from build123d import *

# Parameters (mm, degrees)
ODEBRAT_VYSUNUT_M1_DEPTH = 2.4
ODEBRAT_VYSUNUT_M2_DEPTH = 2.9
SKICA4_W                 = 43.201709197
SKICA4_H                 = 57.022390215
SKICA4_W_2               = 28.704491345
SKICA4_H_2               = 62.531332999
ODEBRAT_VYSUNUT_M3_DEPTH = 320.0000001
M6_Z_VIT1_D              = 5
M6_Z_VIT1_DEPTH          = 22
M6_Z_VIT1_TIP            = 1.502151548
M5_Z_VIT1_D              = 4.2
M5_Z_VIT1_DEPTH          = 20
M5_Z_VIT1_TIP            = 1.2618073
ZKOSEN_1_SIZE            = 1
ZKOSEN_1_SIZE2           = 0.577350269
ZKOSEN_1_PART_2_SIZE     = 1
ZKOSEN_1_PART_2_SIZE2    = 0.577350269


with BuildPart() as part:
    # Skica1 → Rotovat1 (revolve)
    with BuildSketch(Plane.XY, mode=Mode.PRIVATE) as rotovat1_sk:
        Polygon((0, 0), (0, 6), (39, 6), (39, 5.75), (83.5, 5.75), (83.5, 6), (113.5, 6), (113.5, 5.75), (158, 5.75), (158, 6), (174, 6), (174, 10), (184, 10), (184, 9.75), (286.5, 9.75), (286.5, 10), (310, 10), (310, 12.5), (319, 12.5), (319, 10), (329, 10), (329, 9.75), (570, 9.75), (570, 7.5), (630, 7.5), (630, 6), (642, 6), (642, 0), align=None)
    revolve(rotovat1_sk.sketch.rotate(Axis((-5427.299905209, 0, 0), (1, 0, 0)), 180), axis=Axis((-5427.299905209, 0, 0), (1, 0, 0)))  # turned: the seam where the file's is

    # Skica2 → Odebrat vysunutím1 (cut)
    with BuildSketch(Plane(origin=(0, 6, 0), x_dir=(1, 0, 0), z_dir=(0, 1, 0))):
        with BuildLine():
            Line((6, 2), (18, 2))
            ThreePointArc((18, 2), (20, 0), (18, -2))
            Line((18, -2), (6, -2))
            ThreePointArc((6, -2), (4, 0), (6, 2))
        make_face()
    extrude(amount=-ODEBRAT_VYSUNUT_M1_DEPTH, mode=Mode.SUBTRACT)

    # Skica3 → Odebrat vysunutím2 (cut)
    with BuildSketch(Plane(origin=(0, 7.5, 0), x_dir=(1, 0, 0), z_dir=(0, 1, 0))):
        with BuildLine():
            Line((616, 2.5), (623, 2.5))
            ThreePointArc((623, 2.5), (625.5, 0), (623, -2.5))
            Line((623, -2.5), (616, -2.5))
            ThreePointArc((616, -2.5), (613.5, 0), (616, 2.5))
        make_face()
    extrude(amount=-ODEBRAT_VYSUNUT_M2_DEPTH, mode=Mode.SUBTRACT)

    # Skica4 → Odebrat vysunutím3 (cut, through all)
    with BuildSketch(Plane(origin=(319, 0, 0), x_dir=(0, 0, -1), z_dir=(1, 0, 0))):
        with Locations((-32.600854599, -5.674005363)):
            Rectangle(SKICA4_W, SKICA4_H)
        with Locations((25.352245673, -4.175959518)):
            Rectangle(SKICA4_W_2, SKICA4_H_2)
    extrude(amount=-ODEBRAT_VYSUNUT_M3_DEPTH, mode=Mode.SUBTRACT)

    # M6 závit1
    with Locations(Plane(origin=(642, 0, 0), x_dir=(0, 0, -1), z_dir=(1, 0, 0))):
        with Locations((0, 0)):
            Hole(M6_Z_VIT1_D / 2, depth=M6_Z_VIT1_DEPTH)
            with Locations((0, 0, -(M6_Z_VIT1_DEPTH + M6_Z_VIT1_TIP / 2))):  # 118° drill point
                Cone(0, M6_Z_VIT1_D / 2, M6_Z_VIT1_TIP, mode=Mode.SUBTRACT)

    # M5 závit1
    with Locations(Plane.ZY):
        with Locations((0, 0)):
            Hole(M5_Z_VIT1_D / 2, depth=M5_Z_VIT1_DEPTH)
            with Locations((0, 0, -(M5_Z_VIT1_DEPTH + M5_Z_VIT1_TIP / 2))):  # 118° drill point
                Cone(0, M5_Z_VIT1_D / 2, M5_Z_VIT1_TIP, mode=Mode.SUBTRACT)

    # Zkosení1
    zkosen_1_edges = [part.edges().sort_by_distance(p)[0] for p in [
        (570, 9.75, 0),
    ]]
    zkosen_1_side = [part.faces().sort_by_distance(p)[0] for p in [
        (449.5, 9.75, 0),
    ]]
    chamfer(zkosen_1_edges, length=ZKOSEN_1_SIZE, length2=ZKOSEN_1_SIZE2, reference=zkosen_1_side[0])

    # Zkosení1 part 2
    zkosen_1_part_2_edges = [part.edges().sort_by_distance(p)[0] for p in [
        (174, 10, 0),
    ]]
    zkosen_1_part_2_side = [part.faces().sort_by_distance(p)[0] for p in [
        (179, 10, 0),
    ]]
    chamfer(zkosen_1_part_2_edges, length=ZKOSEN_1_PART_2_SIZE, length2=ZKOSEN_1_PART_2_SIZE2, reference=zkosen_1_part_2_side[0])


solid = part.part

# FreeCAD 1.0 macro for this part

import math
import FreeCAD as App
import Part
import Sketcher
from FreeCAD import Vector


def edges_at(feature, points):
    """Names of the edges that pass closest to the given points."""
    edges = feature.Shape.Edges
    near = lambda p: min(range(len(edges)), key=lambda i: edges[i].distToShape(Part.Vertex(*p))[0])
    return sorted({f"Edge{near(p) + 1}" for p in points})

doc = App.newDocument("Part")
body = doc.addObject("PartDesign::Body", "Body")

# Sketch on XY plane
sketch1 = body.newObject("Sketcher::SketchObject", "Sketch")
sketch1.AttachmentSupport = (doc.getObject("XY_Plane"), [""])
sketch1.MapMode = "FlatFace"
sketch1.addGeometry([
    Part.LineSegment(Vector(0, 6, 0), Vector(0, 0, 0)),  # 0
    Part.LineSegment(Vector(0, 0, 0), Vector(642, 0, 0)),  # 1
    Part.LineSegment(Vector(642, 0, 0), Vector(642, 6, 0)),  # 2
    Part.LineSegment(Vector(642, 6, 0), Vector(630, 6, 0)),  # 3
    Part.LineSegment(Vector(630, 6, 0), Vector(630, 7.5, 0)),  # 4
    Part.LineSegment(Vector(630, 7.5, 0), Vector(570, 7.5, 0)),  # 5
    Part.LineSegment(Vector(570, 7.5, 0), Vector(570, 9.75, 0)),  # 6
    Part.LineSegment(Vector(570, 9.75, 0), Vector(329, 9.75, 0)),  # 7
    Part.LineSegment(Vector(329, 9.75, 0), Vector(329, 10, 0)),  # 8
    Part.LineSegment(Vector(329, 10, 0), Vector(319, 10, 0)),  # 9
    Part.LineSegment(Vector(319, 10, 0), Vector(319, 12.5, 0)),  # 10
    Part.LineSegment(Vector(319, 12.5, 0), Vector(310, 12.5, 0)),  # 11
    Part.LineSegment(Vector(310, 12.5, 0), Vector(310, 10, 0)),  # 12
    Part.LineSegment(Vector(310, 10, 0), Vector(286.5, 10, 0)),  # 13
    Part.LineSegment(Vector(286.5, 10, 0), Vector(286.5, 9.75, 0)),  # 14
    Part.LineSegment(Vector(286.5, 9.75, 0), Vector(184, 9.75, 0)),  # 15
    Part.LineSegment(Vector(184, 9.75, 0), Vector(184, 10, 0)),  # 16
    Part.LineSegment(Vector(184, 10, 0), Vector(174, 10, 0)),  # 17
    Part.LineSegment(Vector(174, 10, 0), Vector(174, 6, 0)),  # 18
    Part.LineSegment(Vector(174, 6, 0), Vector(158, 6, 0)),  # 19
    Part.LineSegment(Vector(158, 6, 0), Vector(158, 5.75, 0)),  # 20
    Part.LineSegment(Vector(158, 5.75, 0), Vector(113.5, 5.75, 0)),  # 21
    Part.LineSegment(Vector(113.5, 5.75, 0), Vector(113.5, 6, 0)),  # 22
    Part.LineSegment(Vector(113.5, 6, 0), Vector(83.5, 6, 0)),  # 23
    Part.LineSegment(Vector(83.5, 6, 0), Vector(83.5, 5.75, 0)),  # 24
    Part.LineSegment(Vector(83.5, 5.75, 0), Vector(39, 5.75, 0)),  # 25
    Part.LineSegment(Vector(39, 5.75, 0), Vector(39, 6, 0)),  # 26
    Part.LineSegment(Vector(39, 6, 0), Vector(0, 6, 0)),  # 27
], False)
sketch1.addConstraint([
    Sketcher.Constraint("Coincident", 0, 2, 1, 1),
    Sketcher.Constraint("Coincident", 1, 2, 2, 1),
    Sketcher.Constraint("Coincident", 2, 2, 3, 1),
    Sketcher.Constraint("Coincident", 3, 2, 4, 1),
    Sketcher.Constraint("Coincident", 4, 2, 5, 1),
    Sketcher.Constraint("Coincident", 5, 2, 6, 1),
    Sketcher.Constraint("Coincident", 6, 2, 7, 1),
    Sketcher.Constraint("Coincident", 7, 2, 8, 1),
    Sketcher.Constraint("Coincident", 8, 2, 9, 1),
    Sketcher.Constraint("Coincident", 9, 2, 10, 1),
    Sketcher.Constraint("Coincident", 10, 2, 11, 1),
    Sketcher.Constraint("Coincident", 11, 2, 12, 1),
    Sketcher.Constraint("Coincident", 12, 2, 13, 1),
    Sketcher.Constraint("Coincident", 13, 2, 14, 1),
    Sketcher.Constraint("Coincident", 14, 2, 15, 1),
    Sketcher.Constraint("Coincident", 15, 2, 16, 1),
    Sketcher.Constraint("Coincident", 16, 2, 17, 1),
    Sketcher.Constraint("Coincident", 17, 2, 18, 1),
    Sketcher.Constraint("Coincident", 18, 2, 19, 1),
    Sketcher.Constraint("Coincident", 19, 2, 20, 1),
    Sketcher.Constraint("Coincident", 20, 2, 21, 1),
    Sketcher.Constraint("Coincident", 21, 2, 22, 1),
    Sketcher.Constraint("Coincident", 22, 2, 23, 1),
    Sketcher.Constraint("Coincident", 23, 2, 24, 1),
    Sketcher.Constraint("Coincident", 24, 2, 25, 1),
    Sketcher.Constraint("Coincident", 25, 2, 26, 1),
    Sketcher.Constraint("Coincident", 26, 2, 27, 1),
    Sketcher.Constraint("Coincident", 27, 2, 0, 1),
    Sketcher.Constraint("Vertical", 0),
    Sketcher.Constraint("Horizontal", 1),
    Sketcher.Constraint("Vertical", 2),
    Sketcher.Constraint("Horizontal", 3),
    Sketcher.Constraint("Vertical", 4),
    Sketcher.Constraint("Horizontal", 5),
    Sketcher.Constraint("Vertical", 6),
    Sketcher.Constraint("Horizontal", 7),
    Sketcher.Constraint("Vertical", 8),
    Sketcher.Constraint("Horizontal", 9),
    Sketcher.Constraint("Vertical", 10),
    Sketcher.Constraint("Horizontal", 11),
    Sketcher.Constraint("Vertical", 12),
    Sketcher.Constraint("Horizontal", 13),
    Sketcher.Constraint("Vertical", 14),
    Sketcher.Constraint("Horizontal", 15),
    Sketcher.Constraint("Vertical", 16),
    Sketcher.Constraint("Horizontal", 17),
    Sketcher.Constraint("Vertical", 18),
    Sketcher.Constraint("Horizontal", 19),
    Sketcher.Constraint("Vertical", 20),
    Sketcher.Constraint("Horizontal", 21),
    Sketcher.Constraint("Vertical", 22),
    Sketcher.Constraint("Horizontal", 23),
    Sketcher.Constraint("Vertical", 24),
    Sketcher.Constraint("Horizontal", 25),
    Sketcher.Constraint("Vertical", 26),
    Sketcher.Constraint("Horizontal", 27),
    Sketcher.Constraint("Coincident", 0, 2, -1, 1),
    Sketcher.Constraint("Horizontal", 9, 2, 12, 2),
    Sketcher.Constraint("Horizontal", 7, 2, 14, 2),
    Sketcher.Constraint("Horizontal", 13, 2, 16, 2),
    Sketcher.Constraint("Horizontal", 3, 2, 18, 2),
    Sketcher.Constraint("Horizontal", 19, 2, 22, 2),
    Sketcher.Constraint("Horizontal", 21, 2, 24, 2),
    Sketcher.Constraint("Horizontal", 23, 2, 26, 2),
    Sketcher.Constraint("Equal", 9, 17),
    Sketcher.Constraint("Equal", 21, 25),
    Sketcher.Constraint("Equal", 16, 20),
    Sketcher.Constraint("DistanceX", 1, 1, 1, 2, 642.0),
    Sketcher.Constraint("DistanceX", 3, 2, 3, 1, 12.0),
    Sketcher.Constraint("DistanceX", 5, 2, 5, 1, 60.0),
    Sketcher.Constraint("DistanceX", 7, 2, 7, 1, 241.0),
    Sketcher.Constraint("DistanceX", 9, 2, 9, 1, 10.0),
    Sketcher.Constraint("DistanceX", 11, 2, 11, 1, 9.0),
    Sketcher.Constraint("DistanceX", 19, 2, 19, 1, 16.0),
    Sketcher.Constraint("DistanceX", 23, 2, 23, 1, 30.0),
    Sketcher.Constraint("DistanceX", 27, 2, 27, 1, 39.0),
    Sketcher.Constraint("DistanceY", 0, 2, 0, 1, 6.0),
    Sketcher.Constraint("DistanceY", 18, 2, 18, 1, 4.0),
    Sketcher.Constraint("DistanceX", 13, 2, 13, 1, 23.5),
    Sketcher.Constraint("DistanceX", 15, 2, 15, 1, 102.5),
    Sketcher.Constraint("DistanceY", 4, 1, 4, 2, 1.5),
    Sketcher.Constraint("DistanceY", 10, 1, 10, 2, 2.5),
    Sketcher.Constraint("DistanceY", 6, 1, 6, 2, 2.25),
])
revolution = body.newObject("PartDesign::Revolution", "Revolution")
revolution.Profile = sketch1
revolution.ReferenceAxis = (sketch1, ["H_Axis"])
revolution.Angle = 360

# Sketch on XZ plane
sketch2 = body.newObject("Sketcher::SketchObject", "Sketch001")
sketch2.AttachmentSupport = (doc.getObject("XZ_Plane"), [""])
sketch2.MapMode = "FlatFace"
sketch2.AttachmentOffset = App.Placement(Vector(0, 0, -6), App.Rotation())
sketch2.addGeometry([
    Part.LineSegment(Vector(18, -2, 0), Vector(6, -2, 0)),
    Part.ArcOfCircle(Part.Circle(Vector(6, 0, 0), Vector(0, 0, 1), 2), math.radians(90), math.radians(270)),
    Part.LineSegment(Vector(6, 2, 0), Vector(18, 2, 0)),
    Part.ArcOfCircle(Part.Circle(Vector(18, 0, 0), Vector(0, 0, 1), 2), math.radians(-90), math.radians(90)),
], False)
sketch2.addConstraint([
    Sketcher.Constraint("Tangent", 0, 2, 1, 2),
    Sketcher.Constraint("Tangent", 1, 1, 2, 1),
    Sketcher.Constraint("Tangent", 2, 2, 3, 2),
    Sketcher.Constraint("Tangent", 3, 1, 0, 1),
    Sketcher.Constraint("Horizontal", 0),
    Sketcher.Constraint("Horizontal", 2),
    Sketcher.Constraint("PointOnObject", 1, 3, -1),
    Sketcher.Constraint("Radius", 1, 2.0),
    Sketcher.Constraint("DistanceX", 0, 2, 0, 1, 12.0),
    Sketcher.Constraint("DistanceX", -1, 1, 1, 3, 6.0),
])
pocket1 = body.newObject("PartDesign::Pocket", "Pocket")
pocket1.Profile = sketch2
pocket1.Length = 2.4
pocket1.Reversed = True

# Sketch on XZ plane
sketch3 = body.newObject("Sketcher::SketchObject", "Sketch002")
sketch3.AttachmentSupport = (doc.getObject("XZ_Plane"), [""])
sketch3.MapMode = "FlatFace"
sketch3.AttachmentOffset = App.Placement(Vector(0, 0, -7.5), App.Rotation())
sketch3.addGeometry([
    Part.LineSegment(Vector(623, -2.5, 0), Vector(616, -2.5, 0)),
    Part.ArcOfCircle(Part.Circle(Vector(616, 0, 0), Vector(0, 0, 1), 2.5), math.radians(90), math.radians(270)),
    Part.LineSegment(Vector(616, 2.5, 0), Vector(623, 2.5, 0)),
    Part.ArcOfCircle(Part.Circle(Vector(623, 0, 0), Vector(0, 0, 1), 2.5), math.radians(-90), math.radians(90)),
], False)
sketch3.addConstraint([
    Sketcher.Constraint("Tangent", 0, 2, 1, 2),
    Sketcher.Constraint("Tangent", 1, 1, 2, 1),
    Sketcher.Constraint("Tangent", 2, 2, 3, 2),
    Sketcher.Constraint("Tangent", 3, 1, 0, 1),
    Sketcher.Constraint("Horizontal", 0),
    Sketcher.Constraint("Horizontal", 2),
    Sketcher.Constraint("PointOnObject", 1, 3, -1),
    Sketcher.Constraint("Radius", 1, 2.5),
    Sketcher.Constraint("DistanceX", 0, 2, 0, 1, 7.0),
    Sketcher.Constraint("DistanceX", -1, 1, 1, 3, 616.0),
])
pocket2 = body.newObject("PartDesign::Pocket", "Pocket001")
pocket2.Profile = sketch3
pocket2.Length = 2.9
pocket2.Reversed = True

# Sketch on YZ plane
sketch4 = body.newObject("Sketcher::SketchObject", "Sketch003")
sketch4.AttachmentSupport = (doc.getObject("YZ_Plane"), [""])
sketch4.MapMode = "FlatFace"
sketch4.AttachmentOffset = App.Placement(Vector(0, 0, 319), App.Rotation())
sketch4.addGeometry([
    Part.LineSegment(Vector(22.83719, 54.201709, 0), Vector(-34.1852, 54.201709, 0)),  # 0
    Part.LineSegment(Vector(-34.1852, 54.201709, 0), Vector(-34.1852, 11, 0)),  # 1
    Part.LineSegment(Vector(-34.1852, 11, 0), Vector(22.83719, 11, 0)),  # 2
    Part.LineSegment(Vector(22.83719, 11, 0), Vector(22.83719, 54.201709, 0)),  # 3
    Part.LineSegment(Vector(27.089707, -11, 0), Vector(-35.441626, -11, 0)),  # 4
    Part.LineSegment(Vector(-35.441626, -11, 0), Vector(-35.441626, -39.704491, 0)),  # 5
    Part.LineSegment(Vector(-35.441626, -39.704491, 0), Vector(27.089707, -39.704491, 0)),  # 6
    Part.LineSegment(Vector(27.089707, -39.704491, 0), Vector(27.089707, -11, 0)),  # 7
], False)
sketch4.addConstraint([
    Sketcher.Constraint("Coincident", 0, 2, 1, 1),
    Sketcher.Constraint("Coincident", 1, 2, 2, 1),
    Sketcher.Constraint("Coincident", 2, 2, 3, 1),
    Sketcher.Constraint("Coincident", 3, 2, 0, 1),
    Sketcher.Constraint("Coincident", 4, 2, 5, 1),
    Sketcher.Constraint("Coincident", 5, 2, 6, 1),
    Sketcher.Constraint("Coincident", 6, 2, 7, 1),
    Sketcher.Constraint("Coincident", 7, 2, 4, 1),
    Sketcher.Constraint("Horizontal", 0),
    Sketcher.Constraint("Vertical", 1),
    Sketcher.Constraint("Horizontal", 2),
    Sketcher.Constraint("Vertical", 3),
    Sketcher.Constraint("Horizontal", 4),
    Sketcher.Constraint("Vertical", 5),
    Sketcher.Constraint("Horizontal", 6),
    Sketcher.Constraint("Vertical", 7),
    Sketcher.Constraint("DistanceY", -1, 1, 1, 2, 11.0),
    Sketcher.Constraint("DistanceY", 4, 2, -1, 1, 11.0),
    Sketcher.Constraint("DistanceX", 0, 2, 0, 1, 57.02239),
    Sketcher.Constraint("DistanceY", 1, 2, 1, 1, 43.201709),
    Sketcher.Constraint("DistanceY", 5, 2, 5, 1, 28.704491),
    Sketcher.Constraint("DistanceX", 0, 2, -1, 1, 34.1852),
    Sketcher.Constraint("DistanceX", 4, 2, 4, 1, 62.531333),
    Sketcher.Constraint("DistanceX", 4, 2, -1, 1, 35.441626),
])
pocket3 = body.newObject("PartDesign::Pocket", "Pocket002")
pocket3.Profile = sketch4
pocket3.Type = "ThroughAll"

# Sketch on YZ plane
sketch5 = body.newObject("Sketcher::SketchObject", "Sketch004")
sketch5.AttachmentSupport = (doc.getObject("YZ_Plane"), [""])
sketch5.MapMode = "FlatFace"
sketch5.AttachmentOffset = App.Placement(Vector(0, 0, 642), App.Rotation())
sketch5.addGeometry(Part.Circle(Vector(0, 0, 0), Vector(0, 0, 1), 2.5), False)
sketch5.addConstraint([
    Sketcher.Constraint("Coincident", 0, 3, -1, 1),
    Sketcher.Constraint("Diameter", 0, 5.0),
])
doc.recompute()
hole = body.newObject("PartDesign::Hole", "Hole")
hole.Profile = sketch5
hole.ThreadType = "None"
hole.Diameter = 5
hole.DepthType = "Dimension"
hole.Depth = 22
hole.DrillPoint = "Angled"
hole.DrillPointAngle = 118

# Sketch on YZ plane
sketch6 = body.newObject("Sketcher::SketchObject", "Sketch005")
sketch6.AttachmentSupport = (doc.getObject("YZ_Plane"), [""])
sketch6.MapMode = "FlatFace"
sketch6.addGeometry(Part.Circle(Vector(0, 0, 0), Vector(0, 0, 1), 2.1), False)
sketch6.addConstraint([
    Sketcher.Constraint("Coincident", 0, 3, -1, 1),
    Sketcher.Constraint("Diameter", 0, 4.2),
])
doc.recompute()
hole2 = body.newObject("PartDesign::Hole", "Hole001")
hole2.Profile = sketch6
hole2.ThreadType = "None"
hole2.Diameter = 4.2
hole2.DepthType = "Dimension"
hole2.Depth = 20
hole2.DrillPoint = "Angled"
hole2.DrillPointAngle = 118
hole2.Reversed = True
doc.recompute()

chamfer = body.newObject("PartDesign::Chamfer", "Chamfer")
chamfer.Base = (hole2, edges_at(hole2, [(570, 9.75, 0)]))
chamfer.ChamferType = "Two distances"
chamfer.Size = 1
chamfer.Size2 = 0.57735
doc.recompute()

chamfer2 = body.newObject("PartDesign::Chamfer", "Chamfer001")
chamfer2.Base = (chamfer, edges_at(chamfer, [(174, 10, 0)]))
chamfer2.ChamferType = "Two distances"
chamfer2.Size = 1
chamfer2.Size2 = 0.57735

doc.recompute()
